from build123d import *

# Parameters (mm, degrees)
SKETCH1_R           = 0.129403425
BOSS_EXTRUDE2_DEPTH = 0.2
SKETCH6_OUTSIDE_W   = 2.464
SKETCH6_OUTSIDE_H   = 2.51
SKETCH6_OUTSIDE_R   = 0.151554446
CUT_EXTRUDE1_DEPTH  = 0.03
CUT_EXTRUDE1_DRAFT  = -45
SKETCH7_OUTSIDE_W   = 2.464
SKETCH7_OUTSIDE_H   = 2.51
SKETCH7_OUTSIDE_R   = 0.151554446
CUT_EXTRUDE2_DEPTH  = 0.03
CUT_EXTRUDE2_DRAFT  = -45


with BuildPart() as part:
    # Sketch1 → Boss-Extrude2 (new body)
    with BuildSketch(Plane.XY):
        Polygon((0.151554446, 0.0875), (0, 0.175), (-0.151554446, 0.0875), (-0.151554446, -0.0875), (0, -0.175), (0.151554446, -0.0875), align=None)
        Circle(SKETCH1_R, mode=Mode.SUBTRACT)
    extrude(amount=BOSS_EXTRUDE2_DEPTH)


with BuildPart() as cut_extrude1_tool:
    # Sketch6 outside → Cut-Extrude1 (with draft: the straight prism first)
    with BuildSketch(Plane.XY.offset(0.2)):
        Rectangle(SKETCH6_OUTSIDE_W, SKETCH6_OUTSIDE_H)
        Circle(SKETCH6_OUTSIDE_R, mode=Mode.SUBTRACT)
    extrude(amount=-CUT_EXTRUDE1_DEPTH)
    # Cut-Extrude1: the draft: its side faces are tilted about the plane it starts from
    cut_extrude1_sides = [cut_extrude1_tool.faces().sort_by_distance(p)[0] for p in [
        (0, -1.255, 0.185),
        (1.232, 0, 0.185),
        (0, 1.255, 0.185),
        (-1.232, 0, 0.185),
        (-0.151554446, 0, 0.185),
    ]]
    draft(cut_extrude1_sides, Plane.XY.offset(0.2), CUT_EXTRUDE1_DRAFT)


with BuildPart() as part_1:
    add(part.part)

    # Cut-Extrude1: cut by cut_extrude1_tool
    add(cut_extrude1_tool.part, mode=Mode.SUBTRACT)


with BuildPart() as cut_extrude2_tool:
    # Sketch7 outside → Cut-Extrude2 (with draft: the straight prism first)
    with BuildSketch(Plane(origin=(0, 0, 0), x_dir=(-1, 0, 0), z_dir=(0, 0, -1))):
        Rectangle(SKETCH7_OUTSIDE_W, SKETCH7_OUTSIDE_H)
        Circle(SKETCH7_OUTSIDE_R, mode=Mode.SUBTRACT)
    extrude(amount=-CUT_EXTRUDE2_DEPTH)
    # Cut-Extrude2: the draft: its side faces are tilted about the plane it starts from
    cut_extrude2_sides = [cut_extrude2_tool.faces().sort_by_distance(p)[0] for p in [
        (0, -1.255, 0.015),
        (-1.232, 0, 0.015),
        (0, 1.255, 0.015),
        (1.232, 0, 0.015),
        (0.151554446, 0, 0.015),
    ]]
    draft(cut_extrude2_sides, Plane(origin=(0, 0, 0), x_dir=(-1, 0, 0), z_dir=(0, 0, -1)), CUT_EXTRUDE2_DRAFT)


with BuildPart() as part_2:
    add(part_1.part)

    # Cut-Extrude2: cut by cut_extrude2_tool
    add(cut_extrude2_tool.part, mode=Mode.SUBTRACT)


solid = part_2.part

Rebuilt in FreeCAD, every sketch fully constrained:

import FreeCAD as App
import Part
import Sketcher

V = App.Vector
Q = App.Units.Quantity


def faces_at(feature, points):
    """Names of the faces that lie closest to the given points."""
    faces = feature.Shape.Faces
    near = lambda p: min(range(len(faces)), key=lambda i: faces[i].distToShape(Part.Vertex(*p))[0])
    return sorted({f"Face{near(p) + 1}" for p in points})

doc = App.newDocument("Part")
body = doc.addObject("PartDesign::Body", "Body")

# Sketch on XY plane
sketch1 = doc.addObject("Sketcher::SketchObject", "Sketch")
body.addObject(sketch1)
sketch1.AttachmentSupport = (doc.XY_Plane, [""])
sketch1.MapMode = "FlatFace"
sketch1.addGeometry([
    Part.LineSegment(V(0.15, 0.09, 0), V(0, 0.17, 0)),  # 0
    Part.LineSegment(V(0, 0.17, 0), V(-0.15, 0.09, 0)),  # 1
    Part.LineSegment(V(-0.15, 0.09, 0), V(-0.15, -0.09, 0)),  # 2
    Part.LineSegment(V(-0.15, -0.09, 0), V(0, -0.17, 0)),  # 3
    Part.LineSegment(V(0, -0.17, 0), V(0.15, -0.09, 0)),  # 4
    Part.LineSegment(V(0.15, -0.09, 0), V(0.15, 0.09, 0)),  # 5
    Part.Circle(V(0, 0, 0), V(0, 0, 1), 0.13),  # 6
], False)
sketch1.addConstraint([
    Sketcher.Constraint("Coincident", 0, 2, 1, 1),
    Sketcher.Constraint("Coincident", 1, 2, 2, 1),
    Sketcher.Constraint("Coincident", 2, 2, 3, 1),
    Sketcher.Constraint("Coincident", 3, 2, 4, 1),
    Sketcher.Constraint("Coincident", 4, 2, 5, 1),
    Sketcher.Constraint("Coincident", 5, 2, 0, 1),
    Sketcher.Constraint("Vertical", 2),
    Sketcher.Constraint("Vertical", 5),
    Sketcher.Constraint("Coincident", 6, 3, -1, 1),
    Sketcher.Constraint("Symmetric", 0, 2, 3, 2, -1, 1),
    Sketcher.Constraint("Symmetric", 1, 2, 4, 2, -1, 1),
    Sketcher.Constraint("PointOnObject", 0, 2, -2),
    Sketcher.Constraint("Parallel", 0, 3),
    Sketcher.Constraint("Horizontal", 2, 2, 4, 2),
    Sketcher.Constraint("Angle", 0, Q("150 deg")),
    Sketcher.Constraint("DistanceY", 2, 2, 2, 1, 0.175),
    Sketcher.Constraint("DistanceY", 3, 2, 0, 2, 0.35),
    Sketcher.Constraint("Diameter", 6, 0.258807),
])
pad1 = doc.addObject("PartDesign::Pad", "Pad")
body.addObject(pad1)
pad1.Profile = sketch1
pad1.Length = 0.2
body2 = doc.addObject("PartDesign::Body", "Body001")

# Sketch on XY plane
sketch2 = doc.addObject("Sketcher::SketchObject", "Sketch001")
body2.addObject(sketch2)
sketch2.AttachmentSupport = (doc.getObject("XY_Plane001"), [""])
sketch2.MapMode = "FlatFace"
sketch2.AttachmentOffset = App.Placement(V(0, 0, 0.2), App.Rotation())
sketch2.addGeometry([
    Part.LineSegment(V(-1.23, 1.25, 0), V(-1.23, -1.25, 0)),  # 0
    Part.LineSegment(V(-1.23, -1.25, 0), V(1.23, -1.25, 0)),  # 1
    Part.LineSegment(V(1.23, -1.25, 0), V(1.23, 1.25, 0)),  # 2
    Part.LineSegment(V(1.23, 1.25, 0), V(-1.23, 1.25, 0)),  # 3
    Part.Circle(V(0, 0, 0), V(0, 0, 1), 0.15),  # 4
], False)
sketch2.addConstraint([
    Sketcher.Constraint("Coincident", 0, 2, 1, 1),
    Sketcher.Constraint("Coincident", 1, 2, 2, 1),
    Sketcher.Constraint("Coincident", 2, 2, 3, 1),
    Sketcher.Constraint("Coincident", 3, 2, 0, 1),
    Sketcher.Constraint("Vertical", 0),
    Sketcher.Constraint("Horizontal", 1),
    Sketcher.Constraint("Vertical", 2),
    Sketcher.Constraint("Horizontal", 3),
    Sketcher.Constraint("Coincident", 4, 3, -1, 1),
    Sketcher.Constraint("Symmetric", 0, 2, 2, 2, -1, 1),
    Sketcher.Constraint("DistanceY", 0, 2, 0, 1, 2.51),
    Sketcher.Constraint("Diameter", 4, 0.303109),
    Sketcher.Constraint("DistanceX", 1, 1, 1, 2, 2.464),
])
pad2 = doc.addObject("PartDesign::Pad", "Pad001")
body2.addObject(pad2)
pad2.Profile = sketch2
pad2.Length = 0.03
pad2.Reversed = True
doc.recompute()

datumplane = doc.addObject("PartDesign::Plane", "DatumPlane")
body2.addObject(datumplane)
datumplane.AttachmentSupport = (doc.getObject("XY_Plane001"), [""])
datumplane.MapMode = "FlatFace"
datumplane.AttachmentOffset = App.Placement(V(0, 0, 0.2), App.Rotation())
draft = doc.addObject("PartDesign::Draft", "Draft")
body2.addObject(draft)
draft.Base = (pad2, faces_at(pad2, [
    (0, -1.255, 0.185),
    (1.232, 0, 0.185),
    (0, 1.255, 0.185),
    (-1.232, 0, 0.185),
    (-0.152, 0, 0.185),
]))
draft.NeutralPlane = (datumplane, [""])
draft.Angle = 45
draft.Reversed = True
doc.recompute()

boolean = doc.addObject("PartDesign::Boolean", "Boolean")
body.addObject(boolean)
boolean.Type = "Cut"
boolean.addObjects([body2])
body3 = doc.addObject("PartDesign::Body", "Body002")

# Sketch on XY plane
sketch3 = doc.addObject("Sketcher::SketchObject", "Sketch002")
body3.addObject(sketch3)
sketch3.AttachmentSupport = (doc.getObject("XY_Plane002"), [""])
sketch3.MapMode = "FlatFace"
sketch3.addGeometry([
    Part.LineSegment(V(1.23, 1.25, 0), V(1.23, -1.25, 0)),  # 0
    Part.LineSegment(V(1.23, -1.25, 0), V(-1.23, -1.25, 0)),  # 1
    Part.LineSegment(V(-1.23, -1.25, 0), V(-1.23, 1.25, 0)),  # 2
    Part.LineSegment(V(-1.23, 1.25, 0), V(1.23, 1.25, 0)),  # 3
    Part.Circle(V(0, 0, 0), V(0, 0, 1), 0.15),  # 4
], False)
sketch3.addConstraint([
    Sketcher.Constraint("Coincident", 0, 2, 1, 1),
    Sketcher.Constraint("Coincident", 1, 2, 2, 1),
    Sketcher.Constraint("Coincident", 2, 2, 3, 1),
    Sketcher.Constraint("Coincident", 3, 2, 0, 1),
    Sketcher.Constraint("Vertical", 0),
    Sketcher.Constraint("Horizontal", 1),
    Sketcher.Constraint("Vertical", 2),
    Sketcher.Constraint("Horizontal", 3),
    Sketcher.Constraint("Coincident", 4, 3, -1, 1),
    Sketcher.Constraint("Symmetric", 0, 2, 2, 2, -1, 1),
    Sketcher.Constraint("DistanceY", 0, 2, 0, 1, 2.51),
    Sketcher.Constraint("Diameter", 4, 0.303109),
    Sketcher.Constraint("DistanceX", 1, 2, 1, 1, 2.464),
])
pad3 = doc.addObject("PartDesign::Pad", "Pad002")
body3.addObject(pad3)
pad3.Profile = sketch3
pad3.Length = 0.03
doc.recompute()

draft2 = doc.addObject("PartDesign::Draft", "Draft001")
body3.addObject(draft2)
draft2.Base = (pad3, faces_at(pad3, [
    (0, -1.255, 0.015),
    (-1.232, 0, 0.015),
    (0, 1.255, 0.015),
    (1.232, 0, 0.015),
    (0.152, 0, 0.015),
]))
draft2.NeutralPlane = (doc.getObject("XY_Plane002"), [""])
draft2.Angle = 45
draft2.Reversed = False
doc.recompute()

boolean2 = doc.addObject("PartDesign::Boolean", "Boolean001")
body.addObject(boolean2)
boolean2.Type = "Cut"
boolean2.addObjects([body3])

doc.recompute()
